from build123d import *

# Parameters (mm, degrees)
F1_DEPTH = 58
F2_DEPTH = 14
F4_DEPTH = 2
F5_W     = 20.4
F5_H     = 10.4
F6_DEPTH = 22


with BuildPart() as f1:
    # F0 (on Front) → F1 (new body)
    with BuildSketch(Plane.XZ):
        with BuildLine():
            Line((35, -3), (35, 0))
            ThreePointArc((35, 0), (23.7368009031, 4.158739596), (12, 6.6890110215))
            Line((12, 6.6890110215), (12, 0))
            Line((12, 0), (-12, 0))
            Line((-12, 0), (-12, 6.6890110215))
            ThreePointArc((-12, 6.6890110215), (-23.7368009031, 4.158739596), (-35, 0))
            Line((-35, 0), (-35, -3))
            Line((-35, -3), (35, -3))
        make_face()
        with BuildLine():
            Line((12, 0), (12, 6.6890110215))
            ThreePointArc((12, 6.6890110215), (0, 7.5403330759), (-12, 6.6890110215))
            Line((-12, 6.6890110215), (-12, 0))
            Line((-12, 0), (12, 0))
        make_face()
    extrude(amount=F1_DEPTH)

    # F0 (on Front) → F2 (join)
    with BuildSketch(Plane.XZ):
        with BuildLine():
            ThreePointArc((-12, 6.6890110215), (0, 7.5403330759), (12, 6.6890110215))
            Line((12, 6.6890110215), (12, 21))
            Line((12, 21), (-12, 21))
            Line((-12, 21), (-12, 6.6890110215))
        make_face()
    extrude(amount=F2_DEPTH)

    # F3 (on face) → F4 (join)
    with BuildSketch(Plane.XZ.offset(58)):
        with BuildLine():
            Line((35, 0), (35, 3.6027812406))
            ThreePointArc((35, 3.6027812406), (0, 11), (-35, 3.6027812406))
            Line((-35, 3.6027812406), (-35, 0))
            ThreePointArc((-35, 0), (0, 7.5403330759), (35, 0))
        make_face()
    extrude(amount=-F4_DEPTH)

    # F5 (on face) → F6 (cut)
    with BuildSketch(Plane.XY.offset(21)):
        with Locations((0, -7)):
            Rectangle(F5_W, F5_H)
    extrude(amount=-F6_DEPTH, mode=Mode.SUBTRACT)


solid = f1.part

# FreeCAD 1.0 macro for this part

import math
import FreeCAD as App
import Part
import Sketcher

V = App.Vector
Q = App.Units.Quantity


def add_polygon(sketch, points):
    """Adds a closed chain of lines whose ends are joined by coincident constraints."""
    first, n = sketch.GeometryCount, len(points)
    for a, b in zip(points, points[1:] + points[:1]):
        sketch.addGeometry(Part.LineSegment(App.Vector(*a, 0), App.Vector(*b, 0)), False)
    for i in range(n):
        sketch.addConstraint(Sketcher.Constraint("Coincident", first + i, 2, first + (i + 1) % n, 1))

doc = App.newDocument("Part")
body = doc.addObject("PartDesign::Body", "Body")

# Sketch on XZ plane
sketch1 = body.newObject("Sketcher::SketchObject", "Sketch")
sketch1.AttachmentSupport = (doc.getObject("XZ_Plane"), [""])
sketch1.MapMode = "FlatFace"
sketch1.addGeometry([
    Part.LineSegment(V(-35, -3, 0), V(35, -3, 0)),  # 0
    Part.LineSegment(V(35, -3, 0), V(35, 0, 0)),  # 1
    Part.ArcOfCircle(Part.Circle(V(0, -77.459667, 0), V(0, 0, 1), 85), math.radians(65.684261), math.radians(81.884071)),  # 2
    Part.ArcOfCircle(Part.Circle(V(0, -77.459667, 0), V(0, 0, 1), 85), math.radians(81.884071), math.radians(98.115929)),  # 3
    Part.ArcOfCircle(Part.Circle(V(0, -77.459667, 0), V(0, 0, 1), 85), math.radians(98.115929), math.radians(114.315739)),  # 4
    Part.LineSegment(V(-35, 0, 0), V(-35, -3, 0)),  # 5
], False)
sketch1.addConstraint([
    Sketcher.Constraint("Coincident", 0, 2, 1, 1),
    Sketcher.Constraint("Coincident", 1, 2, 2, 1),
    Sketcher.Constraint("Tangent", 2, 2, 3, 1),
    Sketcher.Constraint("Tangent", 3, 2, 4, 1),
    Sketcher.Constraint("Coincident", 4, 2, 5, 1),
    Sketcher.Constraint("Coincident", 5, 2, 0, 1),
    Sketcher.Constraint("Horizontal", 0),
    Sketcher.Constraint("Vertical", 1),
    Sketcher.Constraint("Vertical", 5),
    Sketcher.Constraint("Coincident", 4, 3, 2, 3),
    Sketcher.Constraint("Symmetric", 1, 2, 4, 2, -1, 1),
    Sketcher.Constraint("Symmetric", 2, 2, 3, 2, -2),
    Sketcher.Constraint("Radius", 2, Q("85 mm")),
    Sketcher.Constraint("DistanceX", 0, 1, 0, 2, Q("70 mm")),
    Sketcher.Constraint("DistanceY", 1, 1, 1, 2, Q("3 mm")),
    Sketcher.Constraint("DistanceX", -1, 1, 2, 2, Q("12 mm")),
])
pad1 = body.newObject("PartDesign::Pad", "Pad")
pad1.Profile = sketch1
pad1.Length = 58

# Sketch on XZ plane
sketch2 = body.newObject("Sketcher::SketchObject", "Sketch001")
sketch2.AttachmentSupport = (doc.getObject("XZ_Plane"), [""])
sketch2.MapMode = "FlatFace"
sketch2.addGeometry([
    Part.ArcOfCircle(Part.Circle(V(0, -77.459667, 0), V(0, 0, 1), 85), math.radians(81.884071), math.radians(98.115929)),
    Part.LineSegment(V(12, 6.689011, 0), V(12, 21, 0)),
    Part.LineSegment(V(12, 21, 0), V(-12, 21, 0)),
    Part.LineSegment(V(-12, 21, 0), V(-12, 6.689011, 0)),
], False)
sketch2.addConstraint([
    Sketcher.Constraint("Coincident", 0, 1, 1, 1),
    Sketcher.Constraint("Coincident", 1, 2, 2, 1),
    Sketcher.Constraint("Coincident", 2, 2, 3, 1),
    Sketcher.Constraint("Coincident", 3, 2, 0, 2),
    Sketcher.Constraint("Vertical", 1),
    Sketcher.Constraint("Horizontal", 2),
    Sketcher.Constraint("Vertical", 3),
    Sketcher.Constraint("Symmetric", 0, 1, 3, 2, -2),
    Sketcher.Constraint("Radius", 0, Q("85 mm")),
    Sketcher.Constraint("DistanceX", 2, 2, 2, 1, Q("24 mm")),
    Sketcher.Constraint("DistanceY", -1, 1, 1, 2, Q("21 mm")),
    Sketcher.Constraint("DistanceY", 1, 1, 1, 2, Q("14.310989 mm")),
])
pad2 = body.newObject("PartDesign::Pad", "Pad001")
pad2.Profile = sketch2
pad2.Length = 14

# Sketch on XZ plane
sketch3 = body.newObject("Sketcher::SketchObject", "Sketch002")
sketch3.AttachmentSupport = (doc.getObject("XZ_Plane"), [""])
sketch3.MapMode = "FlatFace"
sketch3.AttachmentOffset = App.Placement(V(0, 0, 58), App.Rotation())
sketch3.addGeometry([
    Part.LineSegment(V(35, 0, 0), V(35, 3.602781, 0)),
    Part.ArcOfCircle(Part.Circle(V(0, -75.5, 0), V(0, 0, 1), 86.5), math.radians(66.132415), math.radians(113.867585)),
    Part.LineSegment(V(-35, 3.602781, 0), V(-35, 0, 0)),
    Part.ArcOfCircle(Part.Circle(V(0, -77.459667, 0), V(0, 0, 1), 85), math.radians(65.684261), math.radians(114.315739)),
], False)
sketch3.addConstraint([
    Sketcher.Constraint("Coincident", 0, 2, 1, 1),
    Sketcher.Constraint("Coincident", 1, 2, 2, 1),
    Sketcher.Constraint("Coincident", 2, 2, 3, 2),
    Sketcher.Constraint("Coincident", 3, 1, 0, 1),
    Sketcher.Constraint("Vertical", 0),
    Sketcher.Constraint("Vertical", 2),
    Sketcher.Constraint("Symmetric", 2, 2, 3, 1, -1, 1),
    Sketcher.Constraint("PointOnObject", 1, 3, -2),
    Sketcher.Constraint("PointOnObject", 3, 3, -2),
    Sketcher.Constraint("Radius", 3, Q("85 mm")),
    Sketcher.Constraint("Radius", 1, Q("86.5 mm")),
    Sketcher.Constraint("DistanceX", -1, 1, 0, 2, Q("35 mm")),
    Sketcher.Constraint("DistanceY", 1, 3, -1, 1, Q("75.5 mm")),
])
pad3 = body.newObject("PartDesign::Pad", "Pad002")
pad3.Profile = sketch3
pad3.Length = 2
pad3.Reversed = True

# Sketch on XY plane
sketch4 = body.newObject("Sketcher::SketchObject", "Sketch003")
sketch4.AttachmentSupport = (doc.getObject("XY_Plane"), [""])
sketch4.MapMode = "FlatFace"
sketch4.AttachmentOffset = App.Placement(V(0, 0, 21), App.Rotation())
add_polygon(sketch4, [(-10.2, -1.8), (-10.2, -12.2), (10.2, -12.2), (10.2, -1.8)])  # lines 0-3
sketch4.addConstraint([
    Sketcher.Constraint("Vertical", 0),
    Sketcher.Constraint("Horizontal", 1),
    Sketcher.Constraint("Vertical", 2),
    Sketcher.Constraint("Horizontal", 3),
    Sketcher.Constraint("DistanceX", 1, 1, 1, 2, Q("20.4 mm")),
    Sketcher.Constraint("DistanceY", 0, 2, 0, 1, Q("10.4 mm")),
    Sketcher.Constraint("DistanceX", 0, 2, -1, 1, Q("10.2 mm")),
    Sketcher.Constraint("DistanceY", 0, 2, -1, 1, Q("12.2 mm")),
])
pocket1 = body.newObject("PartDesign::Pocket", "Pocket")
pocket1.Profile = sketch4
pocket1.Length = 22

doc.recompute()
